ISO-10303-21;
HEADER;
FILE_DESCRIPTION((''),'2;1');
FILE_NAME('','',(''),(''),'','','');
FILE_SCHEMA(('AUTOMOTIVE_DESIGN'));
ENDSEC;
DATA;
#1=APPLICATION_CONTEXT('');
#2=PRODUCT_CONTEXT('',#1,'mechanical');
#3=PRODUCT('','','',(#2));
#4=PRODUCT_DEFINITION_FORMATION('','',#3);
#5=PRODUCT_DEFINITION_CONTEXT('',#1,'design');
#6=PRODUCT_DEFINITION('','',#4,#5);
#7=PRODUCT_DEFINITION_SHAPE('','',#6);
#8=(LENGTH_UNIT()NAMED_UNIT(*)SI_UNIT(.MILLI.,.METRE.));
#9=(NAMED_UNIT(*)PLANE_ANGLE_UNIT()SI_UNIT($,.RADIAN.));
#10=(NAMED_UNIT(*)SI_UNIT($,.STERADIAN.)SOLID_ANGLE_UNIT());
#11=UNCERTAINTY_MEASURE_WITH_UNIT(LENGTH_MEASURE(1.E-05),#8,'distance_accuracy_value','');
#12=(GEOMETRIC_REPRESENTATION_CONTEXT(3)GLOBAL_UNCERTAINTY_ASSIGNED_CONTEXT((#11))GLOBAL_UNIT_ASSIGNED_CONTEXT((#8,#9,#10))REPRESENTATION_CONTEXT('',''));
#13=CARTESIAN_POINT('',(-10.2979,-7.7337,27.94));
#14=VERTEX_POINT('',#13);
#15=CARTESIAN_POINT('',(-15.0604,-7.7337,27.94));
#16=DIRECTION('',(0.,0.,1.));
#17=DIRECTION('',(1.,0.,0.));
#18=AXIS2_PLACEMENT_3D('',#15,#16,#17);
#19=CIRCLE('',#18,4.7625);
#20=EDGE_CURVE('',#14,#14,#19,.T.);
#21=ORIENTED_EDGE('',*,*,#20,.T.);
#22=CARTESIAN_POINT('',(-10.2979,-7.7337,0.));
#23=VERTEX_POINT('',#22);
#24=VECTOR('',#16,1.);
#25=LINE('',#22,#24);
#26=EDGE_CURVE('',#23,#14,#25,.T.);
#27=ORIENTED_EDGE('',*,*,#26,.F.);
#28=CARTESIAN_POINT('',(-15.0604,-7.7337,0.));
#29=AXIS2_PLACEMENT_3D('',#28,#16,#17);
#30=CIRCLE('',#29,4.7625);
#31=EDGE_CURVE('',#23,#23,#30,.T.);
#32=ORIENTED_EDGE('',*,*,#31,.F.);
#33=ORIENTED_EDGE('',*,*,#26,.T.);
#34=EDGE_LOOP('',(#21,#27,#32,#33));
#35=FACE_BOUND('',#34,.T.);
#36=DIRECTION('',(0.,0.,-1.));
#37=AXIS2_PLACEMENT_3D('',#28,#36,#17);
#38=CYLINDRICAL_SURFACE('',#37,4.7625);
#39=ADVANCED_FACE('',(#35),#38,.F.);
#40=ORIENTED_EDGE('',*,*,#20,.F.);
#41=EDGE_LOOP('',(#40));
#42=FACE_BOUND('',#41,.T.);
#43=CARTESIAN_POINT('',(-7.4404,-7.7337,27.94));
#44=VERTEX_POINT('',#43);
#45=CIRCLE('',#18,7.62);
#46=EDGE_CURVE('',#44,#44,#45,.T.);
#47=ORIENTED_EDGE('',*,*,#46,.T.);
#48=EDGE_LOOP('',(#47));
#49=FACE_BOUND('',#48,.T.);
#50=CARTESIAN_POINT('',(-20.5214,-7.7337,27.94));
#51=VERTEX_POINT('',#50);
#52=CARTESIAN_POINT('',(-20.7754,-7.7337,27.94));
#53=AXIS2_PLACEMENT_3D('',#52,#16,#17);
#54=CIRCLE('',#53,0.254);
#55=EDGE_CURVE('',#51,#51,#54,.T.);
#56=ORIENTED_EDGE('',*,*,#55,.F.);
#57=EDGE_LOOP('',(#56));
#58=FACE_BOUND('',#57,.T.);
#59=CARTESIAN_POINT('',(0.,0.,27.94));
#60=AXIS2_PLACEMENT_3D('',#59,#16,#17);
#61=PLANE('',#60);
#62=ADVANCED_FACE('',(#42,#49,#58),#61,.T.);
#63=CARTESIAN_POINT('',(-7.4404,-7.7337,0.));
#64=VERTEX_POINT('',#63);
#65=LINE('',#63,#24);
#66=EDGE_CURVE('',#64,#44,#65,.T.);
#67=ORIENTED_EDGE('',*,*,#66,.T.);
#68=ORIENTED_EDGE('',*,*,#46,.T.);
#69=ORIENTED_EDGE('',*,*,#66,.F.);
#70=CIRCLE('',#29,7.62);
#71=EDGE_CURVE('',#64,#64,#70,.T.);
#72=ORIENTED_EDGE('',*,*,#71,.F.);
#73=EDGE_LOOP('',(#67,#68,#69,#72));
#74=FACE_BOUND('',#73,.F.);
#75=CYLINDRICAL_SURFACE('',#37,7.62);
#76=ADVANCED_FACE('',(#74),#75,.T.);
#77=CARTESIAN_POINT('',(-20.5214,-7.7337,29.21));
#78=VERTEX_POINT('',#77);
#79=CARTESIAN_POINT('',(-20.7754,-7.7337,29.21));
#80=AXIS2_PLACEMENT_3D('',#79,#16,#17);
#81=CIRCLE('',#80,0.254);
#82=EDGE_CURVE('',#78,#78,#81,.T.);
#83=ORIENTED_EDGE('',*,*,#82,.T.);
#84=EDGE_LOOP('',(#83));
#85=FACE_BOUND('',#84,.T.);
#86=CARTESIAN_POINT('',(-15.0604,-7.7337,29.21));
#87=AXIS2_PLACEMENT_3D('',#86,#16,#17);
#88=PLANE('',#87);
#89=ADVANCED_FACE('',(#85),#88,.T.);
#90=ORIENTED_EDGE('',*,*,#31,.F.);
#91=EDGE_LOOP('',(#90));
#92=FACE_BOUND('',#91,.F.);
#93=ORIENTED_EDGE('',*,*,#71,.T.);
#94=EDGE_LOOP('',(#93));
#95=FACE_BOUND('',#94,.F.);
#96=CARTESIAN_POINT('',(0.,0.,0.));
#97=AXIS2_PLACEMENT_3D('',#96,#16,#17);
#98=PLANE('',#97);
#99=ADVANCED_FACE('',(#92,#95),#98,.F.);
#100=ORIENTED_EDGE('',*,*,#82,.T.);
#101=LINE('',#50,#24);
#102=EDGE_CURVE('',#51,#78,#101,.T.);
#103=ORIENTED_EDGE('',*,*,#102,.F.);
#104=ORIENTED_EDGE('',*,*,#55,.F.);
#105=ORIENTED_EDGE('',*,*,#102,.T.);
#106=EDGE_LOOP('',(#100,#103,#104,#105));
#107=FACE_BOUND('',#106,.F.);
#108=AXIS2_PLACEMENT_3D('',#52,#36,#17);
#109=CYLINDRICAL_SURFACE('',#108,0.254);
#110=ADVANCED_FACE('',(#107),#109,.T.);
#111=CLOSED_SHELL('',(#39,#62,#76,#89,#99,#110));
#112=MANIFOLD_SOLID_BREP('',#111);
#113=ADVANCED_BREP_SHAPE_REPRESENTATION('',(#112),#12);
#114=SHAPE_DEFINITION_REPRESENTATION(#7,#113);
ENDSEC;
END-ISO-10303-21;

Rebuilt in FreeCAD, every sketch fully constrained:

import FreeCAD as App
import Part
import Sketcher
from FreeCAD import Vector
Q = App.Units.Quantity

doc = App.newDocument("Part")
body = doc.addObject("PartDesign::Body", "Body")

sketch1 = body.newObject("Sketcher::SketchObject", "Sketch")
sketch1.AttachmentSupport = (doc.getObject("XY_Plane"), [""])
sketch1.MapMode = "FlatFace"
sketch1.addGeometry(Part.Circle(Vector(-15.1, -7.7, 0), Vector(0, 0, 1), 7.6), False)
sketch1.addGeometry(Part.Circle(Vector(-15.1, -7.7, 0), Vector(0, 0, 1), 4.8), False)
sketch1.addConstraint(Sketcher.Constraint("Coincident", 1, 3, 0, 3))
sketch1.addConstraint(Sketcher.Constraint("Diameter", 0, Q("0.6 in")))
sketch1.addConstraint(Sketcher.Constraint("Diameter", 1, Q("0.375 in")))
sketch1.addConstraint(Sketcher.Constraint("DistanceX", 0, 3, -1, 1, 15.0604))
sketch1.addConstraint(Sketcher.Constraint("DistanceY", 0, 3, -1, 1, 7.7337))
pad1 = body.newObject("PartDesign::Pad", "Pad")
pad1.Profile = sketch1
pad1.Length = Q("1.1 in")

sketch2 = body.newObject("Sketcher::SketchObject", "Sketch001")
sketch2.AttachmentSupport = (doc.getObject("XY_Plane"), [""])
sketch2.MapMode = "FlatFace"
sketch2.AttachmentOffset = App.Placement(Vector(0, 0, 1.1 * 25.4), App.Rotation())
sketch2.addGeometry(Part.Circle(Vector(-20.78, -7.73, 0), Vector(0, 0, 1), 0.25), False)
sketch2.addConstraint(Sketcher.Constraint("Diameter", 0, Q("0.02 in")))
sketch2.addConstraint(Sketcher.Constraint("DistanceX", 0, 3, -1, 1, 20.7754))
sketch2.addConstraint(Sketcher.Constraint("DistanceY", 0, 3, -1, 1, 7.7337))
pad2 = body.newObject("PartDesign::Pad", "Pad001")
pad2.Profile = sketch2
pad2.Length = Q("0.05 in")

doc.recompute()
